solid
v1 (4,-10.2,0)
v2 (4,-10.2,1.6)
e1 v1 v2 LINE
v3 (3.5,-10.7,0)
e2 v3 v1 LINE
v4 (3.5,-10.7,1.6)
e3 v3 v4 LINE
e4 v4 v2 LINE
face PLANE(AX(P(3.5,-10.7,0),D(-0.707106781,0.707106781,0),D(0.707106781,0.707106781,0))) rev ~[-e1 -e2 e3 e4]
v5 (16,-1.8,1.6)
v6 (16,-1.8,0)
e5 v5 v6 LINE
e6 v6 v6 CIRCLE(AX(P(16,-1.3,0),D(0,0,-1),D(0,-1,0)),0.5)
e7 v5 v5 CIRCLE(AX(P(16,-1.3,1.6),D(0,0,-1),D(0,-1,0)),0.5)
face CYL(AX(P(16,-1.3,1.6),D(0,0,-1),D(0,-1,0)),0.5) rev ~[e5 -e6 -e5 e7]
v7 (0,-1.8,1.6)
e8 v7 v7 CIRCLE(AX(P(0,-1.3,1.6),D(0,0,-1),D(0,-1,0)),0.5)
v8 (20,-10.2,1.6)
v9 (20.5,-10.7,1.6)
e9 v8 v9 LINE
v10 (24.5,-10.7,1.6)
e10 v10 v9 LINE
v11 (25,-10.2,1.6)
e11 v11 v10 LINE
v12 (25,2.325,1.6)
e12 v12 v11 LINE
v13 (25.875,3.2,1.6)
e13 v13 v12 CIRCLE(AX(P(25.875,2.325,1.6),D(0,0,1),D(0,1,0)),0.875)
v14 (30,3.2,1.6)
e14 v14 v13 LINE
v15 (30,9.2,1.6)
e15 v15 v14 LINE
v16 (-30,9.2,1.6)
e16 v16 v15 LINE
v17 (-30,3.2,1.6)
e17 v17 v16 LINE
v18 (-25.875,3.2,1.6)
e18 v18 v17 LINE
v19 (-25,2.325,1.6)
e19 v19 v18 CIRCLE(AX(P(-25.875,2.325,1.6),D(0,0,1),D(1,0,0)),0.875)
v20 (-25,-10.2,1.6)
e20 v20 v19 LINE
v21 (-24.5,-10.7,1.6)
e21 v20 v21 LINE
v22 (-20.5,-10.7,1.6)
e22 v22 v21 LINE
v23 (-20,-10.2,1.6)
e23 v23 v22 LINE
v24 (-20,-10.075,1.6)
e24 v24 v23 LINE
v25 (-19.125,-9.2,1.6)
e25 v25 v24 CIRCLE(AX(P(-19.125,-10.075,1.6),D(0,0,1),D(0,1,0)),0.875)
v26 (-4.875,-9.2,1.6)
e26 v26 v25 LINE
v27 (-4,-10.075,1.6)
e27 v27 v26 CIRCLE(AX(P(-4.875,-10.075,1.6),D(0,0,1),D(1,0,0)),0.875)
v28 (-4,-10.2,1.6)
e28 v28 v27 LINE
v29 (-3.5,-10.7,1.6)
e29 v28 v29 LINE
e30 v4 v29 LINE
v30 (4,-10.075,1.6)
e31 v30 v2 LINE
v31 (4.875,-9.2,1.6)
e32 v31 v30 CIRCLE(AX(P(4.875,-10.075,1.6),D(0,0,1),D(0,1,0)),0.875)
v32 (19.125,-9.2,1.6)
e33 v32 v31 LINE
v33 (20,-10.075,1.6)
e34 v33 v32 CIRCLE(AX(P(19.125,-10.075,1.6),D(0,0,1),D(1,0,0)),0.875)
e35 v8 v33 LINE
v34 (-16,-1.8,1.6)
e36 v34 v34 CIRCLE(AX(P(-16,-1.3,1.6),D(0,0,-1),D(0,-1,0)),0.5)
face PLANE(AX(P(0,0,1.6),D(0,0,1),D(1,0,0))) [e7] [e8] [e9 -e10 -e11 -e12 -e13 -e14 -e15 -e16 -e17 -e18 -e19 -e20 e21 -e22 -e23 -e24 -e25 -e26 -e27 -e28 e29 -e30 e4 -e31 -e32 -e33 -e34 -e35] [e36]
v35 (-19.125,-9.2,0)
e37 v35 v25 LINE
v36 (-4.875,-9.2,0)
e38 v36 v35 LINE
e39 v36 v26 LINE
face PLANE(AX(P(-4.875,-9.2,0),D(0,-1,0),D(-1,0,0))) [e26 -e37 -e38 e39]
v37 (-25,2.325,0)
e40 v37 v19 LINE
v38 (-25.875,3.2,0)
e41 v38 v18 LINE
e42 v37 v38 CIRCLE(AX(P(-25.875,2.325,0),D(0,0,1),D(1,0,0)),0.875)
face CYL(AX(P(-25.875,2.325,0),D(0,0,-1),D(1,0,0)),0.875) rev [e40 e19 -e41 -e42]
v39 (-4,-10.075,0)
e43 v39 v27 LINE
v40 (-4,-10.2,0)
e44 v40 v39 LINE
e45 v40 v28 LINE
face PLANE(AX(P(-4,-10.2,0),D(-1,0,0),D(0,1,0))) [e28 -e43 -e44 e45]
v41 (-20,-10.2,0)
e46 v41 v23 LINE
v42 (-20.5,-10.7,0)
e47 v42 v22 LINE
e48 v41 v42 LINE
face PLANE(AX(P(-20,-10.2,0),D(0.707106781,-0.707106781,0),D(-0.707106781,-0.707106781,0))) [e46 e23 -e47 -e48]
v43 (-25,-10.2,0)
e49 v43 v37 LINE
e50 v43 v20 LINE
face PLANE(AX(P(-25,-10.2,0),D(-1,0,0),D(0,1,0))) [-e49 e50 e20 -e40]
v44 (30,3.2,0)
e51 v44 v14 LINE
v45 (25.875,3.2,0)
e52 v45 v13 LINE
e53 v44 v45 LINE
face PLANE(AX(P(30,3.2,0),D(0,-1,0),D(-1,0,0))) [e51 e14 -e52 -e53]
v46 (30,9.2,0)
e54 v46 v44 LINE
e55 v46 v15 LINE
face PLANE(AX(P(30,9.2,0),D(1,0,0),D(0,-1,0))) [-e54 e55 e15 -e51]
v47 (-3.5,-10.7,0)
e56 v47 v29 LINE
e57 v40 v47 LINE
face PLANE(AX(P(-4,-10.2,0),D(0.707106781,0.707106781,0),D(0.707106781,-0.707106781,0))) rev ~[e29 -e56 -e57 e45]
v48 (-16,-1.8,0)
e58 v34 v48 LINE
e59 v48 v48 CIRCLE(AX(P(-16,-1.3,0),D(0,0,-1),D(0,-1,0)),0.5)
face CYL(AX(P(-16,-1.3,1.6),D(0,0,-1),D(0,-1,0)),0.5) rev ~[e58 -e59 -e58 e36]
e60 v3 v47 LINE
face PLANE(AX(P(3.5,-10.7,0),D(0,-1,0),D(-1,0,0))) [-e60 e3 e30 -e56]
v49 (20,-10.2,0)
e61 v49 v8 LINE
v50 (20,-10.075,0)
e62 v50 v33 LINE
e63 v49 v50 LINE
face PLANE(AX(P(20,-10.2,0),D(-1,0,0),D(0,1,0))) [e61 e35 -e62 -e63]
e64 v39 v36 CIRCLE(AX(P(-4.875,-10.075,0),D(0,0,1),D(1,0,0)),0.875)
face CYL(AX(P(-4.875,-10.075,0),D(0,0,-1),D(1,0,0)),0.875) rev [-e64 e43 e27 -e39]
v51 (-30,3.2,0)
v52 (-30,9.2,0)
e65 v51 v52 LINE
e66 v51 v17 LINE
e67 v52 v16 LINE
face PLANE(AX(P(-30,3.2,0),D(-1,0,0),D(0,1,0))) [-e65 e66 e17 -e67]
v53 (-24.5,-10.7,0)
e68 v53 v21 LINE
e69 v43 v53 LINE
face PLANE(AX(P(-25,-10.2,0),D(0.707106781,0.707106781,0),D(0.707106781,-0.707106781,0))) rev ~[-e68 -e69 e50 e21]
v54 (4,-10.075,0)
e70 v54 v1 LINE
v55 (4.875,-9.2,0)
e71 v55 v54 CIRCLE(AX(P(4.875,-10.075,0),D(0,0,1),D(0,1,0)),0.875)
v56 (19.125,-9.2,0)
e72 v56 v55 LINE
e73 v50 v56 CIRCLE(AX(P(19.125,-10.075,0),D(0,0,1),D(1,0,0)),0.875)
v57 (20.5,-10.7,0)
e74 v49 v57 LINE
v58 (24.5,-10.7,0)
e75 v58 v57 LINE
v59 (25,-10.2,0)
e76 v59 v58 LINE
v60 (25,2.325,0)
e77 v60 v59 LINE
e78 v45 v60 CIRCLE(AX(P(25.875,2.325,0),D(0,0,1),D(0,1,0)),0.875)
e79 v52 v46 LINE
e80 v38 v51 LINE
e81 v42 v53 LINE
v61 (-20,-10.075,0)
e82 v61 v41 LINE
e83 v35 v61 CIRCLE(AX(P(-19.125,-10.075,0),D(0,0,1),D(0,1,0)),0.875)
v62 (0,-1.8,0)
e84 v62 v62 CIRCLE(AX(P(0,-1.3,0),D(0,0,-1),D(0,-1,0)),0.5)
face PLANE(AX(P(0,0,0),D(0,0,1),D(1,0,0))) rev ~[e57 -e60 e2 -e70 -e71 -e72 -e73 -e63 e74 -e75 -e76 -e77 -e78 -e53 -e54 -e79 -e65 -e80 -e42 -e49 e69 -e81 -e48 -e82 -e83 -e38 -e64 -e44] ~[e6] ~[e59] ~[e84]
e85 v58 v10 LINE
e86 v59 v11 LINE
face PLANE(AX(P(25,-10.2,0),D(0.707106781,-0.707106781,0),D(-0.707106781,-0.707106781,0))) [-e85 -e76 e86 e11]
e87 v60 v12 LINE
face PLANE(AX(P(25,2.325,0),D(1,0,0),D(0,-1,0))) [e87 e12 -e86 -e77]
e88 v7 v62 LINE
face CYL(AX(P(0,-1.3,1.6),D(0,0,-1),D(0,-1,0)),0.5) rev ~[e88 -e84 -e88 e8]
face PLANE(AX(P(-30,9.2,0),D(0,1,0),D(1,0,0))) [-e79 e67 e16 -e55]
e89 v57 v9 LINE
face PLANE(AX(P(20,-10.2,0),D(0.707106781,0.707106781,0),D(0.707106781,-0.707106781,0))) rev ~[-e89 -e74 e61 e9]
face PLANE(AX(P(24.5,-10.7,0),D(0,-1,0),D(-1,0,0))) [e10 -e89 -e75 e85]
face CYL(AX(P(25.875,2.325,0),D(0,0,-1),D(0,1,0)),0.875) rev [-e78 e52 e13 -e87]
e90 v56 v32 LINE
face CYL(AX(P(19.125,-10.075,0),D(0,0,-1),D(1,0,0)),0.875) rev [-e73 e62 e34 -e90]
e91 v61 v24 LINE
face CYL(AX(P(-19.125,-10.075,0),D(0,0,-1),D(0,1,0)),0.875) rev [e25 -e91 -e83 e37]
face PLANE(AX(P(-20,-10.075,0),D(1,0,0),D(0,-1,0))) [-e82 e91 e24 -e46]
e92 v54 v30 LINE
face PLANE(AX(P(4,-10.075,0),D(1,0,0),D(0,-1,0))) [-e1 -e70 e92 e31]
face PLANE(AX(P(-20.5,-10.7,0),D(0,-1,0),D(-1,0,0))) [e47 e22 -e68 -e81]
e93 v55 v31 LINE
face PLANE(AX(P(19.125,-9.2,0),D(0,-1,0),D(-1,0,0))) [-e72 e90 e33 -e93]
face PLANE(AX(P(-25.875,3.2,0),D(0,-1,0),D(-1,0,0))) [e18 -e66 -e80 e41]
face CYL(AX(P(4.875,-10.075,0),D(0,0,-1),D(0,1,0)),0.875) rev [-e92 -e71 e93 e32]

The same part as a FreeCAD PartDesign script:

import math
import FreeCAD as App
import Part
import Sketcher

doc = App.newDocument("Part")
body = doc.addObject("PartDesign::Body", "Body")

sketch1 = body.newObject("Sketcher::SketchObject", "Sketch")
sketch1.AttachmentSupport = (doc.getObject("XY_Plane"), [""])
sketch1.MapMode = "FlatFace"
sketch1.addGeometry(Part.LineSegment(App.Vector(30, 9.2, 0), App.Vector(-30, 9.2, 0)), False)
sketch1.addGeometry(Part.LineSegment(App.Vector(-30, 9.2, 0), App.Vector(-30, 3.2, 0)), False)
sketch1.addGeometry(Part.LineSegment(App.Vector(-30, 3.2, 0), App.Vector(-25.875, 3.2, 0)), False)
sketch1.addGeometry(Part.ArcOfCircle(Part.Circle(App.Vector(-25.875, 2.325, 0), App.Vector(0, 0, 1), 0.875), math.radians(0), math.radians(90)), False)
sketch1.addGeometry(Part.LineSegment(App.Vector(-25, 2.325, 0), App.Vector(-25, -10.2, 0)), False)
sketch1.addGeometry(Part.LineSegment(App.Vector(-25, -10.2, 0), App.Vector(-24.5, -10.7, 0)), False)
sketch1.addGeometry(Part.LineSegment(App.Vector(-24.5, -10.7, 0), App.Vector(-20.5, -10.7, 0)), False)
sketch1.addGeometry(Part.LineSegment(App.Vector(-20.5, -10.7, 0), App.Vector(-20, -10.2, 0)), False)
sketch1.addGeometry(Part.LineSegment(App.Vector(-20, -10.2, 0), App.Vector(-20, -10.075, 0)), False)
sketch1.addGeometry(Part.ArcOfCircle(Part.Circle(App.Vector(-19.125, -10.075, 0), App.Vector(0, 0, 1), 0.875), math.radians(90), math.radians(180)), False)
sketch1.addGeometry(Part.LineSegment(App.Vector(-19.125, -9.2, 0), App.Vector(-4.875, -9.2, 0)), False)
sketch1.addGeometry(Part.ArcOfCircle(Part.Circle(App.Vector(-4.875, -10.075, 0), App.Vector(0, 0, 1), 0.875), math.radians(0), math.radians(90)), False)
sketch1.addGeometry(Part.LineSegment(App.Vector(-4, -10.075, 0), App.Vector(-4, -10.2, 0)), False)
sketch1.addGeometry(Part.LineSegment(App.Vector(-4, -10.2, 0), App.Vector(-3.5, -10.7, 0)), False)
sketch1.addGeometry(Part.LineSegment(App.Vector(-3.5, -10.7, 0), App.Vector(3.5, -10.7, 0)), False)
sketch1.addGeometry(Part.LineSegment(App.Vector(3.5, -10.7, 0), App.Vector(4, -10.2, 0)), False)
sketch1.addGeometry(Part.LineSegment(App.Vector(4, -10.2, 0), App.Vector(4, -10.075, 0)), False)
sketch1.addGeometry(Part.ArcOfCircle(Part.Circle(App.Vector(4.875, -10.075, 0), App.Vector(0, 0, 1), 0.875), math.radians(90), math.radians(180)), False)
sketch1.addGeometry(Part.LineSegment(App.Vector(4.875, -9.2, 0), App.Vector(19.125, -9.2, 0)), False)
sketch1.addGeometry(Part.ArcOfCircle(Part.Circle(App.Vector(19.125, -10.075, 0), App.Vector(0, 0, 1), 0.875), math.radians(0), math.radians(90)), False)
sketch1.addGeometry(Part.LineSegment(App.Vector(20, -10.075, 0), App.Vector(20, -10.2, 0)), False)
sketch1.addGeometry(Part.LineSegment(App.Vector(20, -10.2, 0), App.Vector(20.5, -10.7, 0)), False)
sketch1.addGeometry(Part.LineSegment(App.Vector(20.5, -10.7, 0), App.Vector(24.5, -10.7, 0)), False)
sketch1.addGeometry(Part.LineSegment(App.Vector(24.5, -10.7, 0), App.Vector(25, -10.2, 0)), False)
sketch1.addGeometry(Part.LineSegment(App.Vector(25, -10.2, 0), App.Vector(25, 2.325, 0)), False)
sketch1.addGeometry(Part.ArcOfCircle(Part.Circle(App.Vector(25.875, 2.325, 0), App.Vector(0, 0, 1), 0.875), math.radians(90), math.radians(180)), False)
sketch1.addGeometry(Part.LineSegment(App.Vector(25.875, 3.2, 0), App.Vector(30, 3.2, 0)), False)
sketch1.addGeometry(Part.LineSegment(App.Vector(30, 3.2, 0), App.Vector(30, 9.2, 0)), False)
sketch1.addConstraint(Sketcher.Constraint("Coincident", 0, 2, 1, 1))
sketch1.addConstraint(Sketcher.Constraint("Coincident", 1, 2, 2, 1))
sketch1.addConstraint(Sketcher.Constraint("Tangent", 2, 2, 3, 2))
sketch1.addConstraint(Sketcher.Constraint("Tangent", 3, 1, 4, 1))
sketch1.addConstraint(Sketcher.Constraint("Coincident", 4, 2, 5, 1))
sketch1.addConstraint(Sketcher.Constraint("Coincident", 5, 2, 6, 1))
sketch1.addConstraint(Sketcher.Constraint("Coincident", 6, 2, 7, 1))
sketch1.addConstraint(Sketcher.Constraint("Coincident", 7, 2, 8, 1))
sketch1.addConstraint(Sketcher.Constraint("Tangent", 8, 2, 9, 2))
sketch1.addConstraint(Sketcher.Constraint("Tangent", 9, 1, 10, 1))
sketch1.addConstraint(Sketcher.Constraint("Tangent", 10, 2, 11, 2))
sketch1.addConstraint(Sketcher.Constraint("Tangent", 11, 1, 12, 1))
sketch1.addConstraint(Sketcher.Constraint("Coincident", 12, 2, 13, 1))
sketch1.addConstraint(Sketcher.Constraint("Coincident", 13, 2, 14, 1))
sketch1.addConstraint(Sketcher.Constraint("Coincident", 14, 2, 15, 1))
sketch1.addConstraint(Sketcher.Constraint("Coincident", 15, 2, 16, 1))
sketch1.addConstraint(Sketcher.Constraint("Tangent", 16, 2, 17, 2))
sketch1.addConstraint(Sketcher.Constraint("Tangent", 17, 1, 18, 1))
sketch1.addConstraint(Sketcher.Constraint("Tangent", 18, 2, 19, 2))
sketch1.addConstraint(Sketcher.Constraint("Tangent", 19, 1, 20, 1))
sketch1.addConstraint(Sketcher.Constraint("Coincident", 20, 2, 21, 1))
sketch1.addConstraint(Sketcher.Constraint("Coincident", 21, 2, 22, 1))
sketch1.addConstraint(Sketcher.Constraint("Coincident", 22, 2, 23, 1))
sketch1.addConstraint(Sketcher.Constraint("Coincident", 23, 2, 24, 1))
sketch1.addConstraint(Sketcher.Constraint("Tangent", 24, 2, 25, 2))
sketch1.addConstraint(Sketcher.Constraint("Tangent", 25, 1, 26, 1))
sketch1.addConstraint(Sketcher.Constraint("Coincident", 26, 2, 27, 1))
sketch1.addConstraint(Sketcher.Constraint("Coincident", 27, 2, 0, 1))
sketch1.addConstraint(Sketcher.Constraint("Horizontal", 0))
sketch1.addConstraint(Sketcher.Constraint("Vertical", 1))
sketch1.addConstraint(Sketcher.Constraint("Horizontal", 2))
sketch1.addConstraint(Sketcher.Constraint("Vertical", 4))
sketch1.addConstraint(Sketcher.Constraint("Horizontal", 6))
sketch1.addConstraint(Sketcher.Constraint("Vertical", 8))
sketch1.addConstraint(Sketcher.Constraint("Horizontal", 10))
sketch1.addConstraint(Sketcher.Constraint("Vertical", 12))
sketch1.addConstraint(Sketcher.Constraint("Horizontal", 14))
sketch1.addConstraint(Sketcher.Constraint("Vertical", 16))
sketch1.addConstraint(Sketcher.Constraint("Horizontal", 18))
sketch1.addConstraint(Sketcher.Constraint("Vertical", 20))
sketch1.addConstraint(Sketcher.Constraint("Horizontal", 22))
sketch1.addConstraint(Sketcher.Constraint("Vertical", 24))
sketch1.addConstraint(Sketcher.Constraint("Horizontal", 26))
sketch1.addConstraint(Sketcher.Constraint("Vertical", 27))
sketch1.addConstraint(Sketcher.Constraint("Equal", 3, 9))
sketch1.addConstraint(Sketcher.Constraint("Equal", 9, 11))
sketch1.addConstraint(Sketcher.Constraint("Equal", 11, 17))
sketch1.addConstraint(Sketcher.Constraint("Equal", 17, 19))
sketch1.addConstraint(Sketcher.Constraint("Equal", 19, 25))
sketch1.addConstraint(Sketcher.Constraint("Symmetric", 11, 3, 17, 3, -2))
sketch1.addConstraint(Sketcher.Constraint("Symmetric", 3, 3, 25, 3, -2))
sketch1.addConstraint(Sketcher.Constraint("Symmetric", 7, 2, 20, 2, -2))
sketch1.addConstraint(Sketcher.Constraint("Symmetric", 6, 2, 21, 2, -2))
sketch1.addConstraint(Sketcher.Constraint("Perpendicular", 5, 7))
sketch1.addConstraint(Sketcher.Constraint("Perpendicular", 7, 13))
sketch1.addConstraint(Sketcher.Constraint("Perpendicular", 13, 15))
sketch1.addConstraint(Sketcher.Constraint("Perpendicular", 15, 21))
sketch1.addConstraint(Sketcher.Constraint("Perpendicular", 21, 23))
sketch1.addConstraint(Sketcher.Constraint("Horizontal", 4, 2, 7, 2))
sketch1.addConstraint(Sketcher.Constraint("Horizontal", 7, 2, 12, 2))
sketch1.addConstraint(Sketcher.Constraint("Horizontal", 6, 2, 13, 2))
sketch1.addConstraint(Sketcher.Constraint("Horizontal", 12, 2, 15, 2))
sketch1.addConstraint(Sketcher.Constraint("Horizontal", 20, 2, 23, 2))
sketch1.addConstraint(Sketcher.Constraint("Equal", 2, 26))
sketch1.addConstraint(Sketcher.Constraint("DistanceY", 1, 2, 1, 1, 6.0))
sketch1.addConstraint(Sketcher.Constraint("DistanceX", 7, 2, -1, 1, 20.0))
sketch1.addConstraint(Sketcher.Constraint("Radius", 3, 0.875))
sketch1.addConstraint(Sketcher.Constraint("DistanceX", 3, 3, 19, 3, 45.0))
sketch1.addConstraint(Sketcher.Constraint("DistanceX", 1, 2, 3, 1, 5.0))
sketch1.addConstraint(Sketcher.Constraint("DistanceX", 12, 2, 15, 2, 8.0))
sketch1.addConstraint(Sketcher.Constraint("DistanceX", 4, 2, 5, 2, 0.5))
sketch1.addConstraint(Sketcher.Constraint("DistanceY", 6, 2, 9, 1, 1.5))
sketch1.addConstraint(Sketcher.Constraint("DistanceY", -1, 1, 0, 2, 9.2))
sketch1.addConstraint(Sketcher.Constraint("DistanceY", 4, 2, -1, 1, 10.2))
pad1 = body.newObject("PartDesign::Pad", "Pad")
pad1.Profile = sketch1
pad1.Length = 1.6

sketch2 = body.newObject("Sketcher::SketchObject", "Sketch001")
sketch2.AttachmentSupport = (doc.getObject("XY_Plane"), [""])
sketch2.MapMode = "FlatFace"
sketch2.AttachmentOffset = App.Placement(App.Vector(0, 0, 1.6), App.Rotation())
sketch2.addGeometry(Part.Circle(App.Vector(0, -1.3, 0), App.Vector(0, 0, 1), 0.5), False)
sketch2.addGeometry(Part.Circle(App.Vector(-16, -1.3, 0), App.Vector(0, 0, 1), 0.5), False)
sketch2.addGeometry(Part.Circle(App.Vector(16, -1.3, 0), App.Vector(0, 0, 1), 0.5), False)
sketch2.addConstraint(Sketcher.Constraint("Equal", 0, 1))
sketch2.addConstraint(Sketcher.Constraint("Equal", 1, 2))
sketch2.addConstraint(Sketcher.Constraint("Symmetric", 1, 3, 2, 3, -2))
sketch2.addConstraint(Sketcher.Constraint("PointOnObject", 0, 3, -2))
sketch2.addConstraint(Sketcher.Constraint("Horizontal", 0, 3, 1, 3))
sketch2.addConstraint(Sketcher.Constraint("Diameter", 0, 1.0))
sketch2.addConstraint(Sketcher.Constraint("DistanceX", 1, 3, -1, 1, 16.0))
sketch2.addConstraint(Sketcher.Constraint("DistanceY", 0, 3, -1, 1, 1.3))
doc.recompute()
hole = body.newObject("PartDesign::Hole", "Hole")
hole.Profile = sketch2
hole.ThreadType = "None"
hole.Diameter = 1
hole.DepthType = "ThroughAll"

doc.recompute()
